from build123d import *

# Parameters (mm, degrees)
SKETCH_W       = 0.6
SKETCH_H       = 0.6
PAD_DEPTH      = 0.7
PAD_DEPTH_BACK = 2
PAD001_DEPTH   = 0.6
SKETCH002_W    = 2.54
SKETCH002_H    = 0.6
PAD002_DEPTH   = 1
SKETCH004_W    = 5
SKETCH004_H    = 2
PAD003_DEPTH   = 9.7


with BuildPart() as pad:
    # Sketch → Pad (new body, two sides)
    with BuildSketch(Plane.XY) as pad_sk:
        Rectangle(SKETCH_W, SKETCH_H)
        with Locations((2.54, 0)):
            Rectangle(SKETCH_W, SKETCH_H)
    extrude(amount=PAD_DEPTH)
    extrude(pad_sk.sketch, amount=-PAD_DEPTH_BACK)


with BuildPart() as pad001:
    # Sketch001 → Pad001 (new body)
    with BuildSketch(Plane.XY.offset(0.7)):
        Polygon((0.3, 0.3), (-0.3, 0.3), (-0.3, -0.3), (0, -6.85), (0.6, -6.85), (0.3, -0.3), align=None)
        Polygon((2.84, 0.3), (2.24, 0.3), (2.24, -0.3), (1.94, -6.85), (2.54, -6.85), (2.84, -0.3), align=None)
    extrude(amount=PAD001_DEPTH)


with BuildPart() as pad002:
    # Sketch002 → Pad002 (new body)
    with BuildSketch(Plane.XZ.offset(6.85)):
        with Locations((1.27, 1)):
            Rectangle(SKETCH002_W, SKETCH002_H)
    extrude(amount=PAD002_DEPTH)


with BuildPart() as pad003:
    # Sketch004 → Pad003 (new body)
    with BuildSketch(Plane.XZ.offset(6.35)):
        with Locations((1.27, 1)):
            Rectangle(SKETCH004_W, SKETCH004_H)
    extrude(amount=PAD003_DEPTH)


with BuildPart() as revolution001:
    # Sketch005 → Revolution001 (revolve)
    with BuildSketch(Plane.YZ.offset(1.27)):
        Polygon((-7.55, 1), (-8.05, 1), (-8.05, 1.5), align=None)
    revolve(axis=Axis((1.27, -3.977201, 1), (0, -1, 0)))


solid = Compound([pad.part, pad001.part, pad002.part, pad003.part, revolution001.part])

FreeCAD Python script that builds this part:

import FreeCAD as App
import Part
import Sketcher

doc = App.newDocument("Part")
body = doc.addObject("PartDesign::Body", "Body")
body.AllowCompound = True

sketch1 = doc.addObject("Sketcher::SketchObject", "Sketch")
body.addObject(sketch1)
sketch1.AttachmentSupport = (doc.XY_Plane, [""])
sketch1.MapMode = "FlatFace"
sketch1.addGeometry([
    Part.LineSegment(App.Vector(-0.3, 0.3, 0), App.Vector(-0.3, -0.3, 0)),
    Part.LineSegment(App.Vector(-0.3, -0.3, 0), App.Vector(0.3, -0.3, 0)),
    Part.LineSegment(App.Vector(0.3, -0.3, 0), App.Vector(0.3, 0.3, 0)),
    Part.LineSegment(App.Vector(0.3, 0.3, 0), App.Vector(-0.3, 0.3, 0)),
    Part.LineSegment(App.Vector(2.2, 0.3, 0), App.Vector(2.2, -0.3, 0)),
    Part.LineSegment(App.Vector(2.2, -0.3, 0), App.Vector(2.8, -0.3, 0)),
    Part.LineSegment(App.Vector(2.8, -0.3, 0), App.Vector(2.8, 0.3, 0)),
    Part.LineSegment(App.Vector(2.8, 0.3, 0), App.Vector(2.2, 0.3, 0)),
], False)
sketch1.addConstraint([
    Sketcher.Constraint("Coincident", 0, 2, 1, 1),
    Sketcher.Constraint("Coincident", 1, 2, 2, 1),
    Sketcher.Constraint("Coincident", 2, 2, 3, 1),
    Sketcher.Constraint("Coincident", 3, 2, 0, 1),
    Sketcher.Constraint("Coincident", 4, 2, 5, 1),
    Sketcher.Constraint("Coincident", 5, 2, 6, 1),
    Sketcher.Constraint("Coincident", 6, 2, 7, 1),
    Sketcher.Constraint("Coincident", 7, 2, 4, 1),
    Sketcher.Constraint("Vertical", 0),
    Sketcher.Constraint("Horizontal", 1),
    Sketcher.Constraint("Vertical", 2),
    Sketcher.Constraint("Horizontal", 3),
    Sketcher.Constraint("Vertical", 4),
    Sketcher.Constraint("Horizontal", 5),
    Sketcher.Constraint("Vertical", 6),
    Sketcher.Constraint("Horizontal", 7),
    Sketcher.Constraint("Symmetric", 0, 2, 2, 2, -1, 1),
    Sketcher.Constraint("Horizontal", 1, 2, 4, 2),
    Sketcher.Constraint("Horizontal", 3, 2, 6, 2),
    Sketcher.Constraint("Equal", 3, 5),
    Sketcher.Constraint("Equal", 7, 0),
    Sketcher.Constraint("DistanceX", 1, 1, 1, 2, 0.6),
    Sketcher.Constraint("DistanceX", -1, 1, 4, 2, 2.24),
])
pad1 = doc.addObject("PartDesign::Pad", "Pad")
body.addObject(pad1)
pad1.Profile = sketch1
pad1.Type = "TwoLengths"
pad1.Length = 0.7
pad1.Length2 = 2
body2 = doc.addObject("PartDesign::Body", "Body001")
body2.AllowCompound = True

sketch2 = doc.addObject("Sketcher::SketchObject", "Sketch001")
body2.addObject(sketch2)
sketch2.AttachmentSupport = (doc.getObject("XY_Plane001"), [""])
sketch2.MapMode = "FlatFace"
sketch2.AttachmentOffset = App.Placement(App.Vector(0, 0, 0.7), App.Rotation())
sketch2.addGeometry([
    Part.LineSegment(App.Vector(0.3, 0.3, 0), App.Vector(-0.3, 0.3, 0)),
    Part.LineSegment(App.Vector(-0.3, 0.3, 0), App.Vector(-0.3, -0.3, 0)),
    Part.LineSegment(App.Vector(-0.3, -0.3, 0), App.Vector(0, -6.8, 0)),
    Part.LineSegment(App.Vector(0, -6.8, 0), App.Vector(0.6, -6.8, 0)),
    Part.LineSegment(App.Vector(0.6, -6.8, 0), App.Vector(0.3, -0.3, 0)),
    Part.LineSegment(App.Vector(0.3, -0.3, 0), App.Vector(0.3, 0.3, 0)),
    Part.LineSegment(App.Vector(2.8, 0.3, 0), App.Vector(2.2, 0.3, 0)),
    Part.LineSegment(App.Vector(2.2, 0.3, 0), App.Vector(2.2, -0.3, 0)),
    Part.LineSegment(App.Vector(2.2, -0.3, 0), App.Vector(1.9, -6.8, 0)),
    Part.LineSegment(App.Vector(1.9, -6.8, 0), App.Vector(2.5, -6.8, 0)),
    Part.LineSegment(App.Vector(2.5, -6.8, 0), App.Vector(2.8, -0.3, 0)),
    Part.LineSegment(App.Vector(2.8, -0.3, 0), App.Vector(2.8, 0.3, 0)),
], False)
sketch2.addConstraint([
    Sketcher.Constraint("Coincident", 0, 2, 1, 1),
    Sketcher.Constraint("Coincident", 1, 2, 2, 1),
    Sketcher.Constraint("Coincident", 2, 2, 3, 1),
    Sketcher.Constraint("Coincident", 3, 2, 4, 1),
    Sketcher.Constraint("Coincident", 4, 2, 5, 1),
    Sketcher.Constraint("Coincident", 5, 2, 0, 1),
    Sketcher.Constraint("Coincident", 6, 2, 7, 1),
    Sketcher.Constraint("Coincident", 7, 2, 8, 1),
    Sketcher.Constraint("Coincident", 8, 2, 9, 1),
    Sketcher.Constraint("Coincident", 9, 2, 10, 1),
    Sketcher.Constraint("Coincident", 10, 2, 11, 1),
    Sketcher.Constraint("Coincident", 11, 2, 6, 1),
    Sketcher.Constraint("Horizontal", 0),
    Sketcher.Constraint("Vertical", 1),
    Sketcher.Constraint("Horizontal", 3),
    Sketcher.Constraint("Vertical", 5),
    Sketcher.Constraint("Horizontal", 6),
    Sketcher.Constraint("Vertical", 7),
    Sketcher.Constraint("Horizontal", 9),
    Sketcher.Constraint("Vertical", 11),
    Sketcher.Constraint("Symmetric", 0, 2, 4, 2, -1, 1),
    Sketcher.Constraint("PointOnObject", 2, 2, -2),
    Sketcher.Constraint("Parallel", 2, 4),
    Sketcher.Constraint("Parallel", 8, 10),
    Sketcher.Constraint("Horizontal", 1, 2, 4, 2),
    Sketcher.Constraint("Horizontal", 5, 2, 6, 2),
    Sketcher.Constraint("Horizontal", 4, 2, 7, 2),
    Sketcher.Constraint("Horizontal", 3, 2, 8, 2),
    Sketcher.Constraint("Horizontal", 7, 2, 10, 2),
    Sketcher.Constraint("Equal", 3, 6),
    Sketcher.Constraint("Equal", 9, 1),
    Sketcher.Constraint("Equal", 4, 8),
    Sketcher.Constraint("DistanceX", 0, 2, 0, 1, 0.6),
    Sketcher.Constraint("DistanceY", 2, 2, -1, 1, 6.85),
    Sketcher.Constraint("DistanceX", -1, 1, 6, 2, 2.24),
])
pad2 = doc.addObject("PartDesign::Pad", "Pad001")
body2.addObject(pad2)
pad2.Profile = sketch2
pad2.Length = 0.6
body3 = doc.addObject("PartDesign::Body", "Body002")

sketch3 = doc.addObject("Sketcher::SketchObject", "Sketch002")
body3.addObject(sketch3)
sketch3.AttachmentSupport = (doc.getObject("XZ_Plane002"), [""])
sketch3.MapMode = "FlatFace"
sketch3.AttachmentOffset = App.Placement(App.Vector(0, 0, 6.85), App.Rotation())
sketch3.addGeometry([
    Part.LineSegment(App.Vector(0, 1.3, 0), App.Vector(0, 0.7, 0)),
    Part.LineSegment(App.Vector(0, 0.7, 0), App.Vector(2.5, 0.7, 0)),
    Part.LineSegment(App.Vector(2.5, 0.7, 0), App.Vector(2.5, 1.3, 0)),
    Part.LineSegment(App.Vector(2.5, 1.3, 0), App.Vector(0, 1.3, 0)),
], False)
sketch3.addConstraint([
    Sketcher.Constraint("Coincident", 0, 2, 1, 1),
    Sketcher.Constraint("Coincident", 1, 2, 2, 1),
    Sketcher.Constraint("Coincident", 2, 2, 3, 1),
    Sketcher.Constraint("Coincident", 3, 2, 0, 1),
    Sketcher.Constraint("Vertical", 0),
    Sketcher.Constraint("Horizontal", 1),
    Sketcher.Constraint("Vertical", 2),
    Sketcher.Constraint("Horizontal", 3),
    Sketcher.Constraint("PointOnObject", 0, 2, -2),
    Sketcher.Constraint("DistanceY", 0, 2, 0, 1, 0.6),
    Sketcher.Constraint("DistanceX", 1, 1, 1, 2, 2.54),
    Sketcher.Constraint("DistanceY", -1, 1, 0, 2, 0.7),
])
pad3 = doc.addObject("PartDesign::Pad", "Pad002")
body3.addObject(pad3)
pad3.Profile = sketch3
pad3.Length = 1
body4 = doc.addObject("PartDesign::Body", "Body003")

sketch4 = doc.addObject("Sketcher::SketchObject", "Sketch003")
body4.addObject(sketch4)
sketch4.AttachmentSupport = (doc.getObject("XZ_Plane003"), [""])
sketch4.MapMode = "FlatFace"
sketch4.AttachmentOffset = App.Placement(App.Vector(0, 0, 6.35), App.Rotation())
sketch4.addGeometry([
    Part.LineSegment(App.Vector(-1.2, 2, 0), App.Vector(-1.2, 0, 0)),
    Part.LineSegment(App.Vector(-1.2, 0, 0), App.Vector(3.8, 0, 0)),
    Part.LineSegment(App.Vector(3.8, 0, 0), App.Vector(3.8, 2, 0)),
    Part.LineSegment(App.Vector(3.8, 2, 0), App.Vector(-1.2, 2, 0)),
], False)
sketch4.addConstraint([
    Sketcher.Constraint("Coincident", 0, 2, 1, 1),
    Sketcher.Constraint("Coincident", 1, 2, 2, 1),
    Sketcher.Constraint("Coincident", 2, 2, 3, 1),
    Sketcher.Constraint("Coincident", 3, 2, 0, 1),
    Sketcher.Constraint("Vertical", 0),
    Sketcher.Constraint("Horizontal", 1),
    Sketcher.Constraint("Vertical", 2),
    Sketcher.Constraint("Horizontal", 3),
    Sketcher.Constraint("PointOnObject", 0, 2, -1),
    Sketcher.Constraint("DistanceX", 1, 1, 1, 2, 5.0),
    Sketcher.Constraint("DistanceY", 0, 2, 0, 1, 2.0),
    Sketcher.Constraint("DistanceX", 0, 2, -1, 1, 1.23),
])
pad4 = doc.addObject("PartDesign::Pad", "Pad003")
body4.addObject(pad4)
pad4.Profile = sketch4
pad4.Length = 9.7
body5 = doc.addObject("PartDesign::Body", "Body004")

sketch5 = doc.addObject("Sketcher::SketchObject", "Sketch004")
body5.addObject(sketch5)
sketch5.AttachmentSupport = (doc.getObject("YZ_Plane004"), [""])
sketch5.MapMode = "FlatFace"
sketch5.AttachmentOffset = App.Placement(App.Vector(0, 0, 1.27), App.Rotation())
sketch5.addGeometry([
    Part.LineSegment(App.Vector(-8.1, 1, 0), App.Vector(-7.5, 1, 0)),
    Part.LineSegment(App.Vector(-7.5, 1, 0), App.Vector(-8.1, 1.5, 0)),
    Part.LineSegment(App.Vector(-8.1, 1.5, 0), App.Vector(-8.1, 1, 0)),
], False)
sketch5.addGeometry(Part.LineSegment(App.Vector(-7.5, 1, 0), App.Vector(-8.1, 1, 0)), True)
sketch5.addConstraint([
    Sketcher.Constraint("Coincident", 0, 2, 1, 1),
    Sketcher.Constraint("Coincident", 1, 2, 2, 1),
    Sketcher.Constraint("Coincident", 2, 2, 0, 1),
    Sketcher.Constraint("Horizontal", 0),
    Sketcher.Constraint("Vertical", 2),
    Sketcher.Constraint("Horizontal", 3),
    Sketcher.Constraint("Coincident", 3, 1, 0, 2),
    Sketcher.Constraint("Vertical", 1, 2, 3, 2),
    Sketcher.Constraint("Equal", 3, 2),
    Sketcher.Constraint("DistanceX", 0, 1, 0, 2, 0.5),
    Sketcher.Constraint("DistanceY", -1, 1, 0, 2, 1.0),
    Sketcher.Constraint("DistanceX", 0, 2, -1, 1, 7.55),
])
revolution = doc.addObject("PartDesign::Revolution", "Revolution")
body5.addObject(revolution)
revolution.Profile = sketch5
revolution.ReferenceAxis = (sketch5, ["Axis0"])
revolution.Angle = 360

doc.recompute()
